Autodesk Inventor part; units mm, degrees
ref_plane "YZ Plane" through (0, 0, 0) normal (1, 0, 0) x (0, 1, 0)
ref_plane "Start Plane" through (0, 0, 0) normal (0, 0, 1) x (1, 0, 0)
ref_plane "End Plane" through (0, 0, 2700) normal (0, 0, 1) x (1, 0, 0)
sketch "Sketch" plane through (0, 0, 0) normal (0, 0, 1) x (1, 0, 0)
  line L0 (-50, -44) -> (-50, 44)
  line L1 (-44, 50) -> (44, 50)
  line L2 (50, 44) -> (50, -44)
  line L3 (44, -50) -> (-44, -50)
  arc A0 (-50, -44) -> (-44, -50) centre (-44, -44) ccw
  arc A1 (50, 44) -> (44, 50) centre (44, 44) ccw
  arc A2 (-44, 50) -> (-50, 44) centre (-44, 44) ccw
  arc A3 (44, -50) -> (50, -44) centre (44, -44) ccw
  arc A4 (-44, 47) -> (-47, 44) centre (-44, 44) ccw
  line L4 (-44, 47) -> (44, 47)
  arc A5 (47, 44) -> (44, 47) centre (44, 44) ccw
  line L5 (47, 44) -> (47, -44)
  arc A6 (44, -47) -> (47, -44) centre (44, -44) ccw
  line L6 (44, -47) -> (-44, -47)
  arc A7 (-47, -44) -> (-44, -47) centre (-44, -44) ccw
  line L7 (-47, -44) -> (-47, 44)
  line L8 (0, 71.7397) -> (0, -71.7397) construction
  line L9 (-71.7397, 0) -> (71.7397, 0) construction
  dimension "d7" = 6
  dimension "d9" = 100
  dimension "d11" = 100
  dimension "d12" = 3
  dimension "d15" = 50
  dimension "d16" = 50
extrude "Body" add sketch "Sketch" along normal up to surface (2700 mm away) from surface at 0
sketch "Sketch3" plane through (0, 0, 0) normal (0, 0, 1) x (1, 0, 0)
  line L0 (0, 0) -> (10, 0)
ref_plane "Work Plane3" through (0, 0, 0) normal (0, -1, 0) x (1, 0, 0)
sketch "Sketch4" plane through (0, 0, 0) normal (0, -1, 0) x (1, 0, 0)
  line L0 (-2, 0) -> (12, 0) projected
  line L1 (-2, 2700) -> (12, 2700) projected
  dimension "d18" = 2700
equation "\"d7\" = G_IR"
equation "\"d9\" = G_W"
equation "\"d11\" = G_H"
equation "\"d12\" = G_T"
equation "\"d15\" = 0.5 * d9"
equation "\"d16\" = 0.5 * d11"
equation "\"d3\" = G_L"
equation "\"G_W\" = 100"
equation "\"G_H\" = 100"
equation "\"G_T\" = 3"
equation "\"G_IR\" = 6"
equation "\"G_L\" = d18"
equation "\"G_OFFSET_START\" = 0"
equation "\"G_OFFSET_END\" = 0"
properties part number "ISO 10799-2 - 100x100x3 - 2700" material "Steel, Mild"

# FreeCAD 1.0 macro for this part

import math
import FreeCAD as App
import Part
import Sketcher
from FreeCAD import Vector
Q = App.Units.Quantity

doc = App.newDocument("Part")
body = doc.addObject("PartDesign::Body", "Body")

# Sketch on XY plane
sketch1 = doc.addObject("Sketcher::SketchObject", "Sketch")
body.addObject(sketch1)
sketch1.AttachmentSupport = (doc.XY_Plane, [""])
sketch1.MapMode = "FlatFace"
sketch1.addGeometry([
    Part.LineSegment(Vector(-50, 44, 0), Vector(-50, -44, 0)),  # 0
    Part.ArcOfCircle(Part.Circle(Vector(-44, -44, 0), Vector(0, 0, 1), 6), math.radians(180), math.radians(270)),  # 1
    Part.LineSegment(Vector(-44, -50, 0), Vector(44, -50, 0)),  # 2
    Part.ArcOfCircle(Part.Circle(Vector(44, -44, 0), Vector(0, 0, 1), 6), math.radians(-90), math.radians(0)),  # 3
    Part.LineSegment(Vector(50, -44, 0), Vector(50, 44, 0)),  # 4
    Part.ArcOfCircle(Part.Circle(Vector(44, 44, 0), Vector(0, 0, 1), 6), math.radians(0), math.radians(90)),  # 5
    Part.LineSegment(Vector(44, 50, 0), Vector(-44, 50, 0)),  # 6
    Part.ArcOfCircle(Part.Circle(Vector(-44, 44, 0), Vector(0, 0, 1), 6), math.radians(90), math.radians(180)),  # 7
    Part.ArcOfCircle(Part.Circle(Vector(-44, 44, 0), Vector(0, 0, 1), 3), math.radians(90), math.radians(180)),  # 8
    Part.LineSegment(Vector(-44, 47, 0), Vector(44, 47, 0)),  # 9
    Part.ArcOfCircle(Part.Circle(Vector(44, 44, 0), Vector(0, 0, 1), 3), math.radians(0), math.radians(90)),  # 10
    Part.LineSegment(Vector(47, 44, 0), Vector(47, -44, 0)),  # 11
    Part.ArcOfCircle(Part.Circle(Vector(44, -44, 0), Vector(0, 0, 1), 3), math.radians(-90), math.radians(0)),  # 12
    Part.LineSegment(Vector(44, -47, 0), Vector(-44, -47, 0)),  # 13
    Part.ArcOfCircle(Part.Circle(Vector(-44, -44, 0), Vector(0, 0, 1), 3), math.radians(180), math.radians(270)),  # 14
    Part.LineSegment(Vector(-47, -44, 0), Vector(-47, 44, 0)),  # 15
], False)
sketch1.addConstraint([
    Sketcher.Constraint("Tangent", 0, 2, 1, 1),
    Sketcher.Constraint("Tangent", 1, 2, 2, 1),
    Sketcher.Constraint("Tangent", 2, 2, 3, 1),
    Sketcher.Constraint("Tangent", 3, 2, 4, 1),
    Sketcher.Constraint("Tangent", 4, 2, 5, 1),
    Sketcher.Constraint("Tangent", 5, 2, 6, 1),
    Sketcher.Constraint("Tangent", 6, 2, 7, 1),
    Sketcher.Constraint("Tangent", 7, 2, 0, 1),
    Sketcher.Constraint("Tangent", 8, 1, 9, 1),
    Sketcher.Constraint("Tangent", 9, 2, 10, 2),
    Sketcher.Constraint("Tangent", 10, 1, 11, 1),
    Sketcher.Constraint("Tangent", 11, 2, 12, 2),
    Sketcher.Constraint("Tangent", 12, 1, 13, 1),
    Sketcher.Constraint("Tangent", 13, 2, 14, 2),
    Sketcher.Constraint("Tangent", 14, 1, 15, 1),
    Sketcher.Constraint("Tangent", 15, 2, 8, 2),
    Sketcher.Constraint("Vertical", 0),
    Sketcher.Constraint("Horizontal", 2),
    Sketcher.Constraint("Vertical", 4),
    Sketcher.Constraint("Horizontal", 6),
    Sketcher.Constraint("Horizontal", 9),
    Sketcher.Constraint("Vertical", 11),
    Sketcher.Constraint("Horizontal", 13),
    Sketcher.Constraint("Vertical", 15),
    Sketcher.Constraint("Coincident", 8, 3, 7, 3),
    Sketcher.Constraint("Coincident", 10, 3, 5, 3),
    Sketcher.Constraint("Coincident", 12, 3, 3, 3),
    Sketcher.Constraint("Equal", 1, 3),
    Sketcher.Constraint("Equal", 3, 5),
    Sketcher.Constraint("Equal", 5, 7),
    Sketcher.Constraint("Equal", 12, 14),
    Sketcher.Constraint("Symmetric", 1, 3, 5, 3, -1, 1),
    Sketcher.Constraint("Equal", 13, 0),
    Sketcher.Constraint("Radius", 1, Q("6 mm")),
    Sketcher.Constraint("Radius", 8, Q("3 mm")),
    Sketcher.Constraint("DistanceX", 0, 2, -1, 1, Q("50 mm")),
])
pad1 = doc.addObject("PartDesign::Pad", "Pad")
body.addObject(pad1)
pad1.Profile = sketch1
pad1.Length = 2700

doc.recompute()
